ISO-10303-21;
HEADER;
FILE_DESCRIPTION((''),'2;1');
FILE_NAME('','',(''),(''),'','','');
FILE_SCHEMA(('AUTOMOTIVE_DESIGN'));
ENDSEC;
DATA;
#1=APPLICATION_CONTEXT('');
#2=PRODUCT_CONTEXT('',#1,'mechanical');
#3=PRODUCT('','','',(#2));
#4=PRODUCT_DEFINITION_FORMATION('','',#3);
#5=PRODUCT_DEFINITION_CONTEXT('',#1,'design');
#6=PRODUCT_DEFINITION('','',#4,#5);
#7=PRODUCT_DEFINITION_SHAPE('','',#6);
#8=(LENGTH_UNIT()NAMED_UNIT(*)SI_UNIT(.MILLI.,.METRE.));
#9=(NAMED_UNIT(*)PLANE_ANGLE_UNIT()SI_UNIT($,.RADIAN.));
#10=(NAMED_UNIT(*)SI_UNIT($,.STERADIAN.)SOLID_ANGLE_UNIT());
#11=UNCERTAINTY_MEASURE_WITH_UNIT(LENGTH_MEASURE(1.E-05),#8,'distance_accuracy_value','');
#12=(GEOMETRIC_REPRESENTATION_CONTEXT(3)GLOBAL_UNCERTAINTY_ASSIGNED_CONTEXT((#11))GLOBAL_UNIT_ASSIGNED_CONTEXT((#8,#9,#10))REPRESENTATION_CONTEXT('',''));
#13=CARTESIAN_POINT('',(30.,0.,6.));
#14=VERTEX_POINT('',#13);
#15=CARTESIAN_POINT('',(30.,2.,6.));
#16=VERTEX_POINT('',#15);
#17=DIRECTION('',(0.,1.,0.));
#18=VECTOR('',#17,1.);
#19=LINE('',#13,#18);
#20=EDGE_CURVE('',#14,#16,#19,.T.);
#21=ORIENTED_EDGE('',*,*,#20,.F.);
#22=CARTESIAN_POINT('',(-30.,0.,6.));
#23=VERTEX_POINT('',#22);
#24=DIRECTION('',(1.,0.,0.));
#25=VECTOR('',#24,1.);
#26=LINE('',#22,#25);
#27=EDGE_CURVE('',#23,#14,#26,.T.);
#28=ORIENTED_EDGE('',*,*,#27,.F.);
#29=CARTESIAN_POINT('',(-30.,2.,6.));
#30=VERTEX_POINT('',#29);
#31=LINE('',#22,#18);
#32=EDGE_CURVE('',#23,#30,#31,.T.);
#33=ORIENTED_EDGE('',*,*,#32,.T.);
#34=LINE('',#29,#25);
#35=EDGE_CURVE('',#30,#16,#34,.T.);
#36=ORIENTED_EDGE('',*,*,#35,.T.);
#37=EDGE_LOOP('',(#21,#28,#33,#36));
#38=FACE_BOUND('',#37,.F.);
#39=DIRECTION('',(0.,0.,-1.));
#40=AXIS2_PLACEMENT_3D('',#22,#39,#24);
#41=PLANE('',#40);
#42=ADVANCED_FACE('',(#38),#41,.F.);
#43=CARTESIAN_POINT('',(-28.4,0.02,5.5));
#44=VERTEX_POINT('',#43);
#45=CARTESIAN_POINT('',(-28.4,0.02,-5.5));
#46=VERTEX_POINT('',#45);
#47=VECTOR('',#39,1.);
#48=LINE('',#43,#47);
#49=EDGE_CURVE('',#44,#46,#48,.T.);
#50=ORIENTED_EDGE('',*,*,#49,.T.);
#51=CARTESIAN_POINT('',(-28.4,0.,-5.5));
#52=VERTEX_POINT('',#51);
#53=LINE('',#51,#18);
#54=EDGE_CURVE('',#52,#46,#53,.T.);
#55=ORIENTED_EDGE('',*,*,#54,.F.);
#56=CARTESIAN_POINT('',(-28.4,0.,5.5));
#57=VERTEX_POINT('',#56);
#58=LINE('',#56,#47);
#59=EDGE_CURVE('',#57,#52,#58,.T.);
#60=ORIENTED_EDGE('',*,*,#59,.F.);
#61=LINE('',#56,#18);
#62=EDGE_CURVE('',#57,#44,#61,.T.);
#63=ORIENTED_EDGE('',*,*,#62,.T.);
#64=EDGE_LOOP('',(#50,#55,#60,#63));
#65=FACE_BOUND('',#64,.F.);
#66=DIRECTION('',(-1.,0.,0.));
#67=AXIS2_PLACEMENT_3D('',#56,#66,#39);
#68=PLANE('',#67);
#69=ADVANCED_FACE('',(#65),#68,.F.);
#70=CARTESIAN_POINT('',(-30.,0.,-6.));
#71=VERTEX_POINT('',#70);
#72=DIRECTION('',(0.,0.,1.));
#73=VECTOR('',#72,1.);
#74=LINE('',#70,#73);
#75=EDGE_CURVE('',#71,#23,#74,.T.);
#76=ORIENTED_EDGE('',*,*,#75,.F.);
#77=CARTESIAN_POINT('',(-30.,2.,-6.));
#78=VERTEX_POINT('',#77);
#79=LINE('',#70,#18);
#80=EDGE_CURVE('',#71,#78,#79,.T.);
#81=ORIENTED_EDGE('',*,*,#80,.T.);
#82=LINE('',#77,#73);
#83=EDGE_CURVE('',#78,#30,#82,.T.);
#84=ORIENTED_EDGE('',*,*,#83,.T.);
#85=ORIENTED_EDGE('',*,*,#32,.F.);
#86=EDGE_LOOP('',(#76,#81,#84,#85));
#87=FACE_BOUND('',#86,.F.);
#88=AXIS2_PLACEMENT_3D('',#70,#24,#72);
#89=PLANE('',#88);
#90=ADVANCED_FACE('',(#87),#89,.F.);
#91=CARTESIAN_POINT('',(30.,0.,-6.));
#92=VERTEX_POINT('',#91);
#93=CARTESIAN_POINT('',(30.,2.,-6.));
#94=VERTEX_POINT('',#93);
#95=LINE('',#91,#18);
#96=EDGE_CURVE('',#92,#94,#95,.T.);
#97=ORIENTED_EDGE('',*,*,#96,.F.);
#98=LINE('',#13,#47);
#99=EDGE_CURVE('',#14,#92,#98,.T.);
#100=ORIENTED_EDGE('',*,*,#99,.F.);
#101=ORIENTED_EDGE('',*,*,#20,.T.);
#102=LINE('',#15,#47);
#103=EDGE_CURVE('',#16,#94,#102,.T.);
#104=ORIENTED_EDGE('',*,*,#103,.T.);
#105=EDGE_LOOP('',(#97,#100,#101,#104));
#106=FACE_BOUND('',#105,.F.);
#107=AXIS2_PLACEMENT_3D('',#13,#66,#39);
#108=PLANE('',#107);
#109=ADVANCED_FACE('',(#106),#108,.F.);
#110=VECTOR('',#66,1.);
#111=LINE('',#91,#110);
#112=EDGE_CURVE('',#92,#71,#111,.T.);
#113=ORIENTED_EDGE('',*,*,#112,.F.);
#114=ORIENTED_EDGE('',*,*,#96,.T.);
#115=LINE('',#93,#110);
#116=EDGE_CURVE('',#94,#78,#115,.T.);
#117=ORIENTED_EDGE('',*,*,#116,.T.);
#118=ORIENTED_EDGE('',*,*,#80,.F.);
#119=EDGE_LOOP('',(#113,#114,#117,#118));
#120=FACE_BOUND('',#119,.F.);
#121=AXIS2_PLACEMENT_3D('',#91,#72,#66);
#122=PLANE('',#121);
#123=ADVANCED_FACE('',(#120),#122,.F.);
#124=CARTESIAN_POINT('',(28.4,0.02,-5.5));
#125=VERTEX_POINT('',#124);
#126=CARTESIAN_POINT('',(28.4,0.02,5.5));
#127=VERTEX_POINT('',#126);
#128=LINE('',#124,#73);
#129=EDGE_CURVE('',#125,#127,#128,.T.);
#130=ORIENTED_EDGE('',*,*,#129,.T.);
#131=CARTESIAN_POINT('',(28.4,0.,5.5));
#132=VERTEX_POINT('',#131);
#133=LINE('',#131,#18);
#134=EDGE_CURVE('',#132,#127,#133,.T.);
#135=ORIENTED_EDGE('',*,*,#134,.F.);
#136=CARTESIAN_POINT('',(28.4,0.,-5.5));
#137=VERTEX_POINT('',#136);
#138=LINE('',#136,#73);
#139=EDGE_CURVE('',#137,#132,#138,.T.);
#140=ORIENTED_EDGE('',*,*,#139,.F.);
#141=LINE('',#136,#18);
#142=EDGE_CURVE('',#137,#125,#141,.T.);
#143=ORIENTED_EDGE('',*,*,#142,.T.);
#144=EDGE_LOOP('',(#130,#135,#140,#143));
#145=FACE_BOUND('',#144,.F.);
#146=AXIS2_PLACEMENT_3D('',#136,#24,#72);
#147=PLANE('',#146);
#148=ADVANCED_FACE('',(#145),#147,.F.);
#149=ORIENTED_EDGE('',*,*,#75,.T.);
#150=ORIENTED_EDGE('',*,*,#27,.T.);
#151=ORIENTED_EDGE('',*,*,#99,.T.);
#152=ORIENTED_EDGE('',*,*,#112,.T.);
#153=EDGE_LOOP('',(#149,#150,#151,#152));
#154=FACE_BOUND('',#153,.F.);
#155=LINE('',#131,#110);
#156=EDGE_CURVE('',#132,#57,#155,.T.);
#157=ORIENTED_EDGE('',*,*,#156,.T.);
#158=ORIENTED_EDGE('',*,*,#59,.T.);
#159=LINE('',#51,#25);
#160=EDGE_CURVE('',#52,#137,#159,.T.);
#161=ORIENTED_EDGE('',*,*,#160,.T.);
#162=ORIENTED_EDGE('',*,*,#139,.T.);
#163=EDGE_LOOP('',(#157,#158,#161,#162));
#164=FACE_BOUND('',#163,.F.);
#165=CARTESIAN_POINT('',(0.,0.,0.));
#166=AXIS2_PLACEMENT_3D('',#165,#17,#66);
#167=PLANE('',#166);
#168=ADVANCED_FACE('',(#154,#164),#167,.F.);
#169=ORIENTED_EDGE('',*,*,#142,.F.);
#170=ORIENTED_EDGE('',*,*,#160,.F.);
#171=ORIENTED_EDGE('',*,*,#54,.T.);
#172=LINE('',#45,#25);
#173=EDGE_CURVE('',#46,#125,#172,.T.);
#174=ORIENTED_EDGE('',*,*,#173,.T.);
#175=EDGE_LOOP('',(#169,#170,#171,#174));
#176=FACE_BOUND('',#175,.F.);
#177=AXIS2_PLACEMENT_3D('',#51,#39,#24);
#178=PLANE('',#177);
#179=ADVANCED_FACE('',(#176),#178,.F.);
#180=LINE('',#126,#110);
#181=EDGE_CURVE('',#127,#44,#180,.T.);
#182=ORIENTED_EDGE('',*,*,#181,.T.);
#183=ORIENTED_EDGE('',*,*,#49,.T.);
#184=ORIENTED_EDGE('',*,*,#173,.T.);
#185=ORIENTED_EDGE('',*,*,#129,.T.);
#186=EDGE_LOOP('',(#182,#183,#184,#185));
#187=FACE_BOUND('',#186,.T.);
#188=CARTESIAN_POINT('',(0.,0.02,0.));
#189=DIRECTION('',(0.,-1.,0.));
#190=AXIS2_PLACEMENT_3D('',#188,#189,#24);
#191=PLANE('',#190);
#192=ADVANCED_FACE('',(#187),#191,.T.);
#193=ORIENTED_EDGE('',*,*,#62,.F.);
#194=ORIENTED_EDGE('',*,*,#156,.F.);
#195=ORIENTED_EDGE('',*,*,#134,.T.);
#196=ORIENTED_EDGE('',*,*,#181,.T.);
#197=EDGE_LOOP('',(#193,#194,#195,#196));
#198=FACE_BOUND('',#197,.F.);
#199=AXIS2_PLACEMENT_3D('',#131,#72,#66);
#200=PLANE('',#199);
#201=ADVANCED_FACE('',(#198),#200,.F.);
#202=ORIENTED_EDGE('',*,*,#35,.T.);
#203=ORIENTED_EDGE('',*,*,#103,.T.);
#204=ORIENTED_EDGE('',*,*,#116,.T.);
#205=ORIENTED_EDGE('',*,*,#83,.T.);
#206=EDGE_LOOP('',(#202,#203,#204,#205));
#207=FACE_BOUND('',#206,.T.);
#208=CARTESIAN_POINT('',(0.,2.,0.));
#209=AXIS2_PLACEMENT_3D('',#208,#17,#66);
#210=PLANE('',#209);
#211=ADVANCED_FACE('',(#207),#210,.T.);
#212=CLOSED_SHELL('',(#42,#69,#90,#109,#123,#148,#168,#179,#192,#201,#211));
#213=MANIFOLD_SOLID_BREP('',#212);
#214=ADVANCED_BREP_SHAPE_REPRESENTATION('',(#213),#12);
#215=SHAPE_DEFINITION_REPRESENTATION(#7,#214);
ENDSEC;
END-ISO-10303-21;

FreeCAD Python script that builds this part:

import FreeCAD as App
import Part
import Sketcher

V = App.Vector

doc = App.newDocument("Part")
body = doc.addObject("PartDesign::Body", "Body")

sketch1 = body.newObject("Sketcher::SketchObject", "Sketch")
sketch1.AttachmentSupport = (doc.getObject("XZ_Plane"), [""])
sketch1.MapMode = "FlatFace"
sketch1.addGeometry(Part.LineSegment(V(-30, -6, 0), V(-30, 6, 0)), False)
sketch1.addGeometry(Part.LineSegment(V(-30, 6, 0), V(30, 6, 0)), False)
sketch1.addGeometry(Part.LineSegment(V(30, 6, 0), V(30, -6, 0)), False)
sketch1.addGeometry(Part.LineSegment(V(30, -6, 0), V(-30, -6, 0)), False)
sketch1.addConstraint(Sketcher.Constraint("Coincident", 0, 2, 1, 1))
sketch1.addConstraint(Sketcher.Constraint("Coincident", 1, 2, 2, 1))
sketch1.addConstraint(Sketcher.Constraint("Coincident", 2, 2, 3, 1))
sketch1.addConstraint(Sketcher.Constraint("Coincident", 3, 2, 0, 1))
sketch1.addConstraint(Sketcher.Constraint("Vertical", 0))
sketch1.addConstraint(Sketcher.Constraint("Horizontal", 1))
sketch1.addConstraint(Sketcher.Constraint("Vertical", 2))
sketch1.addConstraint(Sketcher.Constraint("Horizontal", 3))
sketch1.addConstraint(Sketcher.Constraint("Symmetric", 0, 2, 2, 2, -1, 1))
sketch1.addConstraint(Sketcher.Constraint("DistanceX", 1, 1, 1, 2, 60.0))
sketch1.addConstraint(Sketcher.Constraint("DistanceY", 0, 1, 0, 2, 12.0))
pad1 = body.newObject("PartDesign::Pad", "Pad")
pad1.Profile = sketch1
pad1.Length = 2
pad1.Reversed = True

sketch2 = body.newObject("Sketcher::SketchObject", "Sketch001")
sketch2.AttachmentSupport = (doc.getObject("XZ_Plane"), [""])
sketch2.MapMode = "FlatFace"
sketch2.addGeometry(Part.LineSegment(V(28.4, -5.5, 0), V(28.4, 5.5, 0)), False)
sketch2.addGeometry(Part.LineSegment(V(28.4, 5.5, 0), V(-28.4, 5.5, 0)), False)
sketch2.addGeometry(Part.LineSegment(V(-28.4, 5.5, 0), V(-28.4, -5.5, 0)), False)
sketch2.addGeometry(Part.LineSegment(V(-28.4, -5.5, 0), V(28.4, -5.5, 0)), False)
sketch2.addConstraint(Sketcher.Constraint("Coincident", 0, 2, 1, 1))
sketch2.addConstraint(Sketcher.Constraint("Coincident", 1, 2, 2, 1))
sketch2.addConstraint(Sketcher.Constraint("Coincident", 2, 2, 3, 1))
sketch2.addConstraint(Sketcher.Constraint("Coincident", 3, 2, 0, 1))
sketch2.addConstraint(Sketcher.Constraint("Vertical", 0))
sketch2.addConstraint(Sketcher.Constraint("Horizontal", 1))
sketch2.addConstraint(Sketcher.Constraint("Vertical", 2))
sketch2.addConstraint(Sketcher.Constraint("Horizontal", 3))
sketch2.addConstraint(Sketcher.Constraint("Symmetric", 0, 2, 2, 2, -1, 1))
sketch2.addConstraint(Sketcher.Constraint("DistanceY", 0, 1, 0, 2, 11.0))
sketch2.addConstraint(Sketcher.Constraint("DistanceX", 1, 2, 1, 1, 56.8))
pocket1 = body.newObject("PartDesign::Pocket", "Pocket")
pocket1.Profile = sketch2
pocket1.Length = 0.02

doc.recompute()
